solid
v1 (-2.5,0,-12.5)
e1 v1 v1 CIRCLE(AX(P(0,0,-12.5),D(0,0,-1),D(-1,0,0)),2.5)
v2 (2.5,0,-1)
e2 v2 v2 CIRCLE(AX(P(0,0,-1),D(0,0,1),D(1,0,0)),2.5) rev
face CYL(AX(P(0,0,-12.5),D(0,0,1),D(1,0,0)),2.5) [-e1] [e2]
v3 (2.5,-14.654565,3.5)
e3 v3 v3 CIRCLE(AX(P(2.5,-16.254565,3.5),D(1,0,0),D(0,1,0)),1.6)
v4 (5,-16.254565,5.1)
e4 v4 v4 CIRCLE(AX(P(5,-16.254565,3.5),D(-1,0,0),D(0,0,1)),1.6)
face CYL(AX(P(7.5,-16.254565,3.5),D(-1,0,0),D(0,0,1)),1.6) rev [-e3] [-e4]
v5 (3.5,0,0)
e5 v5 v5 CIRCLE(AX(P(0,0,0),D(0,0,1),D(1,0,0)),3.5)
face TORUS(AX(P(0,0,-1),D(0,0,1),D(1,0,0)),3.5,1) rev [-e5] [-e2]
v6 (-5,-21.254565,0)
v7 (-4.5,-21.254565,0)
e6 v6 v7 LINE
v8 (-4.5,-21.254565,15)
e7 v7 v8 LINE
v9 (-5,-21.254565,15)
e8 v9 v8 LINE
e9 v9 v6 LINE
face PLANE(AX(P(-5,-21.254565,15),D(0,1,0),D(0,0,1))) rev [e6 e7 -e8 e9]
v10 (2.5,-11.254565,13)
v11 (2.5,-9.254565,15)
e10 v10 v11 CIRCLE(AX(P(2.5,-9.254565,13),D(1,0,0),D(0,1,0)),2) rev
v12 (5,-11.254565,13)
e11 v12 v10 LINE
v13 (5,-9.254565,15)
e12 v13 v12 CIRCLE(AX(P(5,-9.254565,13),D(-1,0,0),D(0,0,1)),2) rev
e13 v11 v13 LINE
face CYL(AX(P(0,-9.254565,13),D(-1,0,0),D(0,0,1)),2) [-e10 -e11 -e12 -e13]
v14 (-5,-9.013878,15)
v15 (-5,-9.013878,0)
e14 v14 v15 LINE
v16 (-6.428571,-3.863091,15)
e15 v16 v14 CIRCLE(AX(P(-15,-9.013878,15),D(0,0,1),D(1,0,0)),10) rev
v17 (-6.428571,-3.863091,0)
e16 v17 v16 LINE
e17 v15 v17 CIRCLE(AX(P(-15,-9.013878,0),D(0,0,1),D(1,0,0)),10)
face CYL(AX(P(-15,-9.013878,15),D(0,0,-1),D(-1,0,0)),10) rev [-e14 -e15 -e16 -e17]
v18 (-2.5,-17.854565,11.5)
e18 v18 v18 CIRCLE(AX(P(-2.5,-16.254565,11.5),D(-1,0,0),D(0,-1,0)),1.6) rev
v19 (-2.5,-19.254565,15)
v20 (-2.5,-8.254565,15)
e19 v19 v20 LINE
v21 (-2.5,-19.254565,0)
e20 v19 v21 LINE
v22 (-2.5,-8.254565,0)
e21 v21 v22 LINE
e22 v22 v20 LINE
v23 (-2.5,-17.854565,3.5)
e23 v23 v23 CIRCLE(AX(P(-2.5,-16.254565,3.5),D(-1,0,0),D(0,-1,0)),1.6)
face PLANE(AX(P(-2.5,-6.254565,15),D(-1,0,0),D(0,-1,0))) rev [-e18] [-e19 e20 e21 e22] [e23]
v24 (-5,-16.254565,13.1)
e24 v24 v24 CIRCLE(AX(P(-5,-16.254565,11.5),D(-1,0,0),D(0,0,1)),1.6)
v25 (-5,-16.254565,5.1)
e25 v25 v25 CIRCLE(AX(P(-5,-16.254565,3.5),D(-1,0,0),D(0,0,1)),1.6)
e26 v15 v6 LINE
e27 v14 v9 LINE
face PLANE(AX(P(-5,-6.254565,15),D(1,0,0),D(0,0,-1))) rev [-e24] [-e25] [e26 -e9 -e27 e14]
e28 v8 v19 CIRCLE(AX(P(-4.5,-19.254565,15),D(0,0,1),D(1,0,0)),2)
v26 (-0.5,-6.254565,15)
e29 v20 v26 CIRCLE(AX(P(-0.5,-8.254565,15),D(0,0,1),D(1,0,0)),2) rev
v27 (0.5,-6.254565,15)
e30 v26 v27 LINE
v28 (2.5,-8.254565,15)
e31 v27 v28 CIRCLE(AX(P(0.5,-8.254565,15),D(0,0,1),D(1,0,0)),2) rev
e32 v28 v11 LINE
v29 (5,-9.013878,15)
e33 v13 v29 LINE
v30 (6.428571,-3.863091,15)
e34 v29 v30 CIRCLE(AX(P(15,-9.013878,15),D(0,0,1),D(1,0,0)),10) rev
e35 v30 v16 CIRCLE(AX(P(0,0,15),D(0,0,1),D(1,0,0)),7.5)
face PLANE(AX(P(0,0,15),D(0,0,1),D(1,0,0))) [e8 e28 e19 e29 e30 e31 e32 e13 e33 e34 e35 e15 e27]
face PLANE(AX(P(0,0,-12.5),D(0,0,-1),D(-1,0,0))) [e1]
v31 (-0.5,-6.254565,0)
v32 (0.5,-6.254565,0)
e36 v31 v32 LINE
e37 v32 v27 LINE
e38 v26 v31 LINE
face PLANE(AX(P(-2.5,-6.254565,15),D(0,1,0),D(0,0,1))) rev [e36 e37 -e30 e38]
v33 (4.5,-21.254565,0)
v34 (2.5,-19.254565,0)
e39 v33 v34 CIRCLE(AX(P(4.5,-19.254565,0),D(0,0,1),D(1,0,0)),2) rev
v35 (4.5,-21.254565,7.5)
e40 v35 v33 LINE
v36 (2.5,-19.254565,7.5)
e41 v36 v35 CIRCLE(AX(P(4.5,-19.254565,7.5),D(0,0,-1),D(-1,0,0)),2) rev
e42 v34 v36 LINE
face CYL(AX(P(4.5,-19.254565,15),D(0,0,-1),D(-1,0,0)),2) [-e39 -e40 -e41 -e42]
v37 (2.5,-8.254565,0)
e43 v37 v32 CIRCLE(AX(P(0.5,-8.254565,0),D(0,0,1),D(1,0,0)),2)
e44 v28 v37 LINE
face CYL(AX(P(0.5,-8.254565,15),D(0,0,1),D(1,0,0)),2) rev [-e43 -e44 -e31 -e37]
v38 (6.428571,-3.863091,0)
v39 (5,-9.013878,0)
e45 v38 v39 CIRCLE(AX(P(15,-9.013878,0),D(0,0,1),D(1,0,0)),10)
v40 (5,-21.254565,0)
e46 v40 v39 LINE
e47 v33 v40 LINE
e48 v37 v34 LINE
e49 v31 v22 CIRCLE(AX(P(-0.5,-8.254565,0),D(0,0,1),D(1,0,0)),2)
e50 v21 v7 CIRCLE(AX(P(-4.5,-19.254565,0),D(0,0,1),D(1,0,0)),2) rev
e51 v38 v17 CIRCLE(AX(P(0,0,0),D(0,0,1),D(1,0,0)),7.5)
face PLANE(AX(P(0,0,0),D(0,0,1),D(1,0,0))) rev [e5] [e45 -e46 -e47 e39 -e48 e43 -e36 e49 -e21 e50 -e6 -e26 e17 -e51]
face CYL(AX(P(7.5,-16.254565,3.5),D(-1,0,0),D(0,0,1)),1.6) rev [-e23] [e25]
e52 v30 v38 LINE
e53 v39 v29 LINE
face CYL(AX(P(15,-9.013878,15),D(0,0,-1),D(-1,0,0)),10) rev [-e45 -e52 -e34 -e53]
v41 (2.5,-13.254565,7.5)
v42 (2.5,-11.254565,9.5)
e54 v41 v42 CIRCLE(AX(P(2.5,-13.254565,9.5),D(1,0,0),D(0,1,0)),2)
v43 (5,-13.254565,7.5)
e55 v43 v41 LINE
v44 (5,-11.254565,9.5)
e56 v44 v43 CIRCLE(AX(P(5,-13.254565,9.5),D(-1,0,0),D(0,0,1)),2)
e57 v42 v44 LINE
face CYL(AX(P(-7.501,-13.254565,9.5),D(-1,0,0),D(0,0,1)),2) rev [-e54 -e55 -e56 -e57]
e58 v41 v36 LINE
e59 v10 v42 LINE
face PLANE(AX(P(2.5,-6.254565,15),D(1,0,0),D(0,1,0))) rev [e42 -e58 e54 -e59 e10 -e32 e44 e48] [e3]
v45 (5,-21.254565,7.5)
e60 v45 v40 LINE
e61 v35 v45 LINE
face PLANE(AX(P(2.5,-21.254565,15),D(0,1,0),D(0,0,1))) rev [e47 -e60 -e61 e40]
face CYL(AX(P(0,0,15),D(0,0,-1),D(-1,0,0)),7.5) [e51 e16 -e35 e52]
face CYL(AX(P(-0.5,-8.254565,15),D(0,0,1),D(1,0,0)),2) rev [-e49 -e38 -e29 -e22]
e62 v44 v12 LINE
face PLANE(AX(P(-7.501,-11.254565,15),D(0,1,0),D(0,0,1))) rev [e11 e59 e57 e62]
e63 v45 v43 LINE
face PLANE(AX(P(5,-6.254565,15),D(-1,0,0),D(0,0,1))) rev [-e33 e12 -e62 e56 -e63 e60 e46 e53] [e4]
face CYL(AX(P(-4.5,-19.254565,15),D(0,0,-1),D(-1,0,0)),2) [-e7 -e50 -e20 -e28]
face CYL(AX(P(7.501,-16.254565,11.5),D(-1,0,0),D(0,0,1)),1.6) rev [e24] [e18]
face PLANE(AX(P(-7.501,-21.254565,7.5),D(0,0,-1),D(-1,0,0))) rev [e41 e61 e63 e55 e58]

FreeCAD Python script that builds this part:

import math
import FreeCAD as App
import Part
import Sketcher
from FreeCAD import Vector
Q = App.Units.Quantity


def edges_at(feature, points):
    """Names of the edges that pass closest to the given points."""
    edges = feature.Shape.Edges
    near = lambda p: min(range(len(edges)), key=lambda i: edges[i].distToShape(Part.Vertex(*p))[0])
    return sorted({f"Edge{near(p) + 1}" for p in points})

doc = App.newDocument("Part")
body = doc.addObject("PartDesign::Body", "Body")

# Sketch on XY plane
sketch1 = body.newObject("Sketcher::SketchObject", "Sketch")
sketch1.AttachmentSupport = (doc.getObject("XY_Plane"), [""])
sketch1.MapMode = "FlatFace"
sketch1.addGeometry(Part.LineSegment(Vector(-2.5, -21.254565, 0), Vector(-2.5, -6.254565, 0)), False)
sketch1.addGeometry(Part.LineSegment(Vector(-2.5, -6.254565, 0), Vector(2.5, -6.254565, 0)), False)
sketch1.addGeometry(Part.LineSegment(Vector(2.5, -6.254565, 0), Vector(2.5, -21.254565, 0)), False)
sketch1.addGeometry(Part.LineSegment(Vector(2.5, -21.254565, 0), Vector(5, -21.254565, 0)), False)
sketch1.addGeometry(Part.LineSegment(Vector(5, -21.254565, 0), Vector(5, -5.59017, 0)), False)
sketch1.addGeometry(Part.ArcOfCircle(Part.Circle(Vector(0, 0, 0), Vector(0, 0, 1), 7.5), math.radians(-48.189685), math.radians(228.189685)), False)
sketch1.addGeometry(Part.LineSegment(Vector(-5, -5.59017, 0), Vector(-5, -21.254565, 0)), False)
sketch1.addGeometry(Part.LineSegment(Vector(-5, -21.254565, 0), Vector(-2.5, -21.254565, 0)), False)
sketch1.addConstraint(Sketcher.Constraint("Coincident", 0, 2, 1, 1))
sketch1.addConstraint(Sketcher.Constraint("Coincident", 1, 2, 2, 1))
sketch1.addConstraint(Sketcher.Constraint("Coincident", 2, 2, 3, 1))
sketch1.addConstraint(Sketcher.Constraint("Coincident", 3, 2, 4, 1))
sketch1.addConstraint(Sketcher.Constraint("Coincident", 4, 2, 5, 1))
sketch1.addConstraint(Sketcher.Constraint("Coincident", 5, 2, 6, 1))
sketch1.addConstraint(Sketcher.Constraint("Coincident", 6, 2, 7, 1))
sketch1.addConstraint(Sketcher.Constraint("Coincident", 7, 2, 0, 1))
sketch1.addConstraint(Sketcher.Constraint("Vertical", 0))
sketch1.addConstraint(Sketcher.Constraint("Horizontal", 1))
sketch1.addConstraint(Sketcher.Constraint("Vertical", 2))
sketch1.addConstraint(Sketcher.Constraint("Horizontal", 3))
sketch1.addConstraint(Sketcher.Constraint("Vertical", 4))
sketch1.addConstraint(Sketcher.Constraint("Vertical", 6))
sketch1.addConstraint(Sketcher.Constraint("Horizontal", 7))
sketch1.addConstraint(Sketcher.Constraint("Coincident", 5, 3, -1, 1))
sketch1.addConstraint(Sketcher.Constraint("Symmetric", 3, 2, 6, 2, -2))
sketch1.addConstraint(Sketcher.Constraint("Equal", 3, 7))
sketch1.addConstraint(Sketcher.Constraint("Radius", 5, Q("7.5 mm")))
sketch1.addConstraint(Sketcher.Constraint("DistanceX", 1, 1, 1, 2, Q("5 mm")))
sketch1.addConstraint(Sketcher.Constraint("DistanceY", 0, 1, 0, 2, Q("15 mm")))
sketch1.addConstraint(Sketcher.Constraint("DistanceX", 3, 1, 3, 2, Q("2.5 mm")))
sketch1.addConstraint(Sketcher.Constraint("DistanceY", 4, 1, 4, 2, Q("15.664395 mm")))
pad1 = body.newObject("PartDesign::Pad", "Pad")
pad1.Profile = sketch1
pad1.Length = 15
doc.recompute()

fillet = body.newObject("PartDesign::Fillet", "Fillet")
fillet.Base = (pad1, edges_at(pad1, [(-5, -5.59, 7.5), (5, -5.59, 7.5)]))
fillet.Radius = 10

# Sketch on XY plane
sketch2 = body.newObject("Sketcher::SketchObject", "Sketch001")
sketch2.AttachmentSupport = (doc.getObject("XY_Plane"), [""])
sketch2.MapMode = "FlatFace"
sketch2.addGeometry(Part.Circle(Vector(0, 0, 0), Vector(0, 0, 1), 2.5), False)
sketch2.addConstraint(Sketcher.Constraint("Coincident", 0, 3, -1, 1))
sketch2.addConstraint(Sketcher.Constraint("Diameter", 0, Q("5 mm")))
pad2 = body.newObject("PartDesign::Pad", "Pad001")
pad2.Profile = sketch2
pad2.Length = 12.5
pad2.Reversed = True

# Sketch on YZ plane
sketch3 = body.newObject("Sketcher::SketchObject", "Sketch002")
sketch3.AttachmentSupport = (doc.getObject("YZ_Plane"), [""])
sketch3.MapMode = "FlatFace"
sketch3.AttachmentOffset = App.Placement(Vector(0, 0, 5), App.Rotation())
sketch3.addGeometry(Part.LineSegment(Vector(-11.254565, 15, 0), Vector(-21.254565, 15, 0)), False)
sketch3.addGeometry(Part.LineSegment(Vector(-21.254565, 15, 0), Vector(-21.254565, 7.5, 0)), False)
sketch3.addGeometry(Part.LineSegment(Vector(-21.254565, 7.5, 0), Vector(-11.254565, 7.5, 0)), False)
sketch3.addGeometry(Part.LineSegment(Vector(-11.254565, 7.5, 0), Vector(-11.254565, 15, 0)), False)
sketch3.addConstraint(Sketcher.Constraint("Coincident", 0, 2, 1, 1))
sketch3.addConstraint(Sketcher.Constraint("Coincident", 1, 2, 2, 1))
sketch3.addConstraint(Sketcher.Constraint("Coincident", 2, 2, 3, 1))
sketch3.addConstraint(Sketcher.Constraint("Coincident", 3, 2, 0, 1))
sketch3.addConstraint(Sketcher.Constraint("Horizontal", 0))
sketch3.addConstraint(Sketcher.Constraint("Vertical", 1))
sketch3.addConstraint(Sketcher.Constraint("Horizontal", 2))
sketch3.addConstraint(Sketcher.Constraint("Vertical", 3))
sketch3.addConstraint(Sketcher.Constraint("DistanceX", 0, 2, 0, 1, Q("10 mm")))
sketch3.addConstraint(Sketcher.Constraint("DistanceY", 1, 2, 1, 1, Q("7.5 mm")))
sketch3.addConstraint(Sketcher.Constraint("DistanceY", -1, 1, 0, 2, Q("15 mm")))
sketch3.addConstraint(Sketcher.Constraint("DistanceX", 0, 2, -1, 1, Q("21.254565 mm")))
pocket1 = body.newObject("PartDesign::Pocket", "Pocket")
pocket1.Profile = sketch3
pocket1.Type = "UpToFirst"

# Sketch on YZ plane
sketch4 = body.newObject("Sketcher::SketchObject", "Sketch003")
sketch4.AttachmentSupport = (doc.getObject("YZ_Plane"), [""])
sketch4.MapMode = "FlatFace"
sketch4.AttachmentOffset = App.Placement(Vector(0, 0, -5), App.Rotation())
sketch4.addGeometry(Part.Circle(Vector(-16.254565, 11.5, 0), Vector(0, 0, 1), 1.6), False)
sketch4.addConstraint(Sketcher.Constraint("Diameter", 0, Q("3.2 mm")))
sketch4.addConstraint(Sketcher.Constraint("DistanceY", -1, 1, 0, 3, Q("11.5 mm")))
sketch4.addConstraint(Sketcher.Constraint("DistanceX", 0, 3, -1, 1, Q("16.254565 mm")))
pocket2 = body.newObject("PartDesign::Pocket", "Pocket001")
pocket2.Profile = sketch4
pocket2.Type = "UpToFirst"
pocket2.Reversed = True

# Sketch on YZ plane
sketch5 = body.newObject("Sketcher::SketchObject", "Sketch004")
sketch5.AttachmentSupport = (doc.getObject("YZ_Plane"), [""])
sketch5.MapMode = "FlatFace"
sketch5.AttachmentOffset = App.Placement(Vector(0, 0, -5), App.Rotation())
sketch5.addGeometry(Part.Circle(Vector(-16.254565, 3.5, 0), Vector(0, 0, 1), 1.6), False)
sketch5.addConstraint(Sketcher.Constraint("Diameter", 0, Q("3.2 mm")))
sketch5.addConstraint(Sketcher.Constraint("DistanceY", -1, 1, 0, 3, Q("3.5 mm")))
sketch5.addConstraint(Sketcher.Constraint("DistanceX", 0, 3, -1, 1, Q("16.254565 mm")))
pocket3 = body.newObject("PartDesign::Pocket", "Pocket002")
pocket3.Profile = sketch5
pocket3.Type = "ThroughAll"
pocket3.Reversed = True
doc.recompute()

fillet2 = body.newObject("PartDesign::Fillet", "Fillet001")
fillet2.Base = (pocket3, edges_at(pocket3, [
    (-2.5, -6.255, 7.5),
    (-2.5, -21.255, 7.5),
    (2.5, -6.255, 7.5),
    (2.5, -21.255, 3.75),
]))
fillet2.Radius = 2
doc.recompute()

fillet3 = body.newObject("PartDesign::Fillet", "Fillet002")
fillet3.Base = (fillet2, edges_at(fillet2, [(2.5, 0, 0)]))
fillet3.Radius = 1
doc.recompute()

fillet4 = body.newObject("PartDesign::Fillet", "Fillet003")
fillet4.Base = (fillet3, edges_at(fillet3, [(3.75, -11.255, 15), (3.75, -11.255, 7.5)]))
fillet4.Radius = 2

doc.recompute()
